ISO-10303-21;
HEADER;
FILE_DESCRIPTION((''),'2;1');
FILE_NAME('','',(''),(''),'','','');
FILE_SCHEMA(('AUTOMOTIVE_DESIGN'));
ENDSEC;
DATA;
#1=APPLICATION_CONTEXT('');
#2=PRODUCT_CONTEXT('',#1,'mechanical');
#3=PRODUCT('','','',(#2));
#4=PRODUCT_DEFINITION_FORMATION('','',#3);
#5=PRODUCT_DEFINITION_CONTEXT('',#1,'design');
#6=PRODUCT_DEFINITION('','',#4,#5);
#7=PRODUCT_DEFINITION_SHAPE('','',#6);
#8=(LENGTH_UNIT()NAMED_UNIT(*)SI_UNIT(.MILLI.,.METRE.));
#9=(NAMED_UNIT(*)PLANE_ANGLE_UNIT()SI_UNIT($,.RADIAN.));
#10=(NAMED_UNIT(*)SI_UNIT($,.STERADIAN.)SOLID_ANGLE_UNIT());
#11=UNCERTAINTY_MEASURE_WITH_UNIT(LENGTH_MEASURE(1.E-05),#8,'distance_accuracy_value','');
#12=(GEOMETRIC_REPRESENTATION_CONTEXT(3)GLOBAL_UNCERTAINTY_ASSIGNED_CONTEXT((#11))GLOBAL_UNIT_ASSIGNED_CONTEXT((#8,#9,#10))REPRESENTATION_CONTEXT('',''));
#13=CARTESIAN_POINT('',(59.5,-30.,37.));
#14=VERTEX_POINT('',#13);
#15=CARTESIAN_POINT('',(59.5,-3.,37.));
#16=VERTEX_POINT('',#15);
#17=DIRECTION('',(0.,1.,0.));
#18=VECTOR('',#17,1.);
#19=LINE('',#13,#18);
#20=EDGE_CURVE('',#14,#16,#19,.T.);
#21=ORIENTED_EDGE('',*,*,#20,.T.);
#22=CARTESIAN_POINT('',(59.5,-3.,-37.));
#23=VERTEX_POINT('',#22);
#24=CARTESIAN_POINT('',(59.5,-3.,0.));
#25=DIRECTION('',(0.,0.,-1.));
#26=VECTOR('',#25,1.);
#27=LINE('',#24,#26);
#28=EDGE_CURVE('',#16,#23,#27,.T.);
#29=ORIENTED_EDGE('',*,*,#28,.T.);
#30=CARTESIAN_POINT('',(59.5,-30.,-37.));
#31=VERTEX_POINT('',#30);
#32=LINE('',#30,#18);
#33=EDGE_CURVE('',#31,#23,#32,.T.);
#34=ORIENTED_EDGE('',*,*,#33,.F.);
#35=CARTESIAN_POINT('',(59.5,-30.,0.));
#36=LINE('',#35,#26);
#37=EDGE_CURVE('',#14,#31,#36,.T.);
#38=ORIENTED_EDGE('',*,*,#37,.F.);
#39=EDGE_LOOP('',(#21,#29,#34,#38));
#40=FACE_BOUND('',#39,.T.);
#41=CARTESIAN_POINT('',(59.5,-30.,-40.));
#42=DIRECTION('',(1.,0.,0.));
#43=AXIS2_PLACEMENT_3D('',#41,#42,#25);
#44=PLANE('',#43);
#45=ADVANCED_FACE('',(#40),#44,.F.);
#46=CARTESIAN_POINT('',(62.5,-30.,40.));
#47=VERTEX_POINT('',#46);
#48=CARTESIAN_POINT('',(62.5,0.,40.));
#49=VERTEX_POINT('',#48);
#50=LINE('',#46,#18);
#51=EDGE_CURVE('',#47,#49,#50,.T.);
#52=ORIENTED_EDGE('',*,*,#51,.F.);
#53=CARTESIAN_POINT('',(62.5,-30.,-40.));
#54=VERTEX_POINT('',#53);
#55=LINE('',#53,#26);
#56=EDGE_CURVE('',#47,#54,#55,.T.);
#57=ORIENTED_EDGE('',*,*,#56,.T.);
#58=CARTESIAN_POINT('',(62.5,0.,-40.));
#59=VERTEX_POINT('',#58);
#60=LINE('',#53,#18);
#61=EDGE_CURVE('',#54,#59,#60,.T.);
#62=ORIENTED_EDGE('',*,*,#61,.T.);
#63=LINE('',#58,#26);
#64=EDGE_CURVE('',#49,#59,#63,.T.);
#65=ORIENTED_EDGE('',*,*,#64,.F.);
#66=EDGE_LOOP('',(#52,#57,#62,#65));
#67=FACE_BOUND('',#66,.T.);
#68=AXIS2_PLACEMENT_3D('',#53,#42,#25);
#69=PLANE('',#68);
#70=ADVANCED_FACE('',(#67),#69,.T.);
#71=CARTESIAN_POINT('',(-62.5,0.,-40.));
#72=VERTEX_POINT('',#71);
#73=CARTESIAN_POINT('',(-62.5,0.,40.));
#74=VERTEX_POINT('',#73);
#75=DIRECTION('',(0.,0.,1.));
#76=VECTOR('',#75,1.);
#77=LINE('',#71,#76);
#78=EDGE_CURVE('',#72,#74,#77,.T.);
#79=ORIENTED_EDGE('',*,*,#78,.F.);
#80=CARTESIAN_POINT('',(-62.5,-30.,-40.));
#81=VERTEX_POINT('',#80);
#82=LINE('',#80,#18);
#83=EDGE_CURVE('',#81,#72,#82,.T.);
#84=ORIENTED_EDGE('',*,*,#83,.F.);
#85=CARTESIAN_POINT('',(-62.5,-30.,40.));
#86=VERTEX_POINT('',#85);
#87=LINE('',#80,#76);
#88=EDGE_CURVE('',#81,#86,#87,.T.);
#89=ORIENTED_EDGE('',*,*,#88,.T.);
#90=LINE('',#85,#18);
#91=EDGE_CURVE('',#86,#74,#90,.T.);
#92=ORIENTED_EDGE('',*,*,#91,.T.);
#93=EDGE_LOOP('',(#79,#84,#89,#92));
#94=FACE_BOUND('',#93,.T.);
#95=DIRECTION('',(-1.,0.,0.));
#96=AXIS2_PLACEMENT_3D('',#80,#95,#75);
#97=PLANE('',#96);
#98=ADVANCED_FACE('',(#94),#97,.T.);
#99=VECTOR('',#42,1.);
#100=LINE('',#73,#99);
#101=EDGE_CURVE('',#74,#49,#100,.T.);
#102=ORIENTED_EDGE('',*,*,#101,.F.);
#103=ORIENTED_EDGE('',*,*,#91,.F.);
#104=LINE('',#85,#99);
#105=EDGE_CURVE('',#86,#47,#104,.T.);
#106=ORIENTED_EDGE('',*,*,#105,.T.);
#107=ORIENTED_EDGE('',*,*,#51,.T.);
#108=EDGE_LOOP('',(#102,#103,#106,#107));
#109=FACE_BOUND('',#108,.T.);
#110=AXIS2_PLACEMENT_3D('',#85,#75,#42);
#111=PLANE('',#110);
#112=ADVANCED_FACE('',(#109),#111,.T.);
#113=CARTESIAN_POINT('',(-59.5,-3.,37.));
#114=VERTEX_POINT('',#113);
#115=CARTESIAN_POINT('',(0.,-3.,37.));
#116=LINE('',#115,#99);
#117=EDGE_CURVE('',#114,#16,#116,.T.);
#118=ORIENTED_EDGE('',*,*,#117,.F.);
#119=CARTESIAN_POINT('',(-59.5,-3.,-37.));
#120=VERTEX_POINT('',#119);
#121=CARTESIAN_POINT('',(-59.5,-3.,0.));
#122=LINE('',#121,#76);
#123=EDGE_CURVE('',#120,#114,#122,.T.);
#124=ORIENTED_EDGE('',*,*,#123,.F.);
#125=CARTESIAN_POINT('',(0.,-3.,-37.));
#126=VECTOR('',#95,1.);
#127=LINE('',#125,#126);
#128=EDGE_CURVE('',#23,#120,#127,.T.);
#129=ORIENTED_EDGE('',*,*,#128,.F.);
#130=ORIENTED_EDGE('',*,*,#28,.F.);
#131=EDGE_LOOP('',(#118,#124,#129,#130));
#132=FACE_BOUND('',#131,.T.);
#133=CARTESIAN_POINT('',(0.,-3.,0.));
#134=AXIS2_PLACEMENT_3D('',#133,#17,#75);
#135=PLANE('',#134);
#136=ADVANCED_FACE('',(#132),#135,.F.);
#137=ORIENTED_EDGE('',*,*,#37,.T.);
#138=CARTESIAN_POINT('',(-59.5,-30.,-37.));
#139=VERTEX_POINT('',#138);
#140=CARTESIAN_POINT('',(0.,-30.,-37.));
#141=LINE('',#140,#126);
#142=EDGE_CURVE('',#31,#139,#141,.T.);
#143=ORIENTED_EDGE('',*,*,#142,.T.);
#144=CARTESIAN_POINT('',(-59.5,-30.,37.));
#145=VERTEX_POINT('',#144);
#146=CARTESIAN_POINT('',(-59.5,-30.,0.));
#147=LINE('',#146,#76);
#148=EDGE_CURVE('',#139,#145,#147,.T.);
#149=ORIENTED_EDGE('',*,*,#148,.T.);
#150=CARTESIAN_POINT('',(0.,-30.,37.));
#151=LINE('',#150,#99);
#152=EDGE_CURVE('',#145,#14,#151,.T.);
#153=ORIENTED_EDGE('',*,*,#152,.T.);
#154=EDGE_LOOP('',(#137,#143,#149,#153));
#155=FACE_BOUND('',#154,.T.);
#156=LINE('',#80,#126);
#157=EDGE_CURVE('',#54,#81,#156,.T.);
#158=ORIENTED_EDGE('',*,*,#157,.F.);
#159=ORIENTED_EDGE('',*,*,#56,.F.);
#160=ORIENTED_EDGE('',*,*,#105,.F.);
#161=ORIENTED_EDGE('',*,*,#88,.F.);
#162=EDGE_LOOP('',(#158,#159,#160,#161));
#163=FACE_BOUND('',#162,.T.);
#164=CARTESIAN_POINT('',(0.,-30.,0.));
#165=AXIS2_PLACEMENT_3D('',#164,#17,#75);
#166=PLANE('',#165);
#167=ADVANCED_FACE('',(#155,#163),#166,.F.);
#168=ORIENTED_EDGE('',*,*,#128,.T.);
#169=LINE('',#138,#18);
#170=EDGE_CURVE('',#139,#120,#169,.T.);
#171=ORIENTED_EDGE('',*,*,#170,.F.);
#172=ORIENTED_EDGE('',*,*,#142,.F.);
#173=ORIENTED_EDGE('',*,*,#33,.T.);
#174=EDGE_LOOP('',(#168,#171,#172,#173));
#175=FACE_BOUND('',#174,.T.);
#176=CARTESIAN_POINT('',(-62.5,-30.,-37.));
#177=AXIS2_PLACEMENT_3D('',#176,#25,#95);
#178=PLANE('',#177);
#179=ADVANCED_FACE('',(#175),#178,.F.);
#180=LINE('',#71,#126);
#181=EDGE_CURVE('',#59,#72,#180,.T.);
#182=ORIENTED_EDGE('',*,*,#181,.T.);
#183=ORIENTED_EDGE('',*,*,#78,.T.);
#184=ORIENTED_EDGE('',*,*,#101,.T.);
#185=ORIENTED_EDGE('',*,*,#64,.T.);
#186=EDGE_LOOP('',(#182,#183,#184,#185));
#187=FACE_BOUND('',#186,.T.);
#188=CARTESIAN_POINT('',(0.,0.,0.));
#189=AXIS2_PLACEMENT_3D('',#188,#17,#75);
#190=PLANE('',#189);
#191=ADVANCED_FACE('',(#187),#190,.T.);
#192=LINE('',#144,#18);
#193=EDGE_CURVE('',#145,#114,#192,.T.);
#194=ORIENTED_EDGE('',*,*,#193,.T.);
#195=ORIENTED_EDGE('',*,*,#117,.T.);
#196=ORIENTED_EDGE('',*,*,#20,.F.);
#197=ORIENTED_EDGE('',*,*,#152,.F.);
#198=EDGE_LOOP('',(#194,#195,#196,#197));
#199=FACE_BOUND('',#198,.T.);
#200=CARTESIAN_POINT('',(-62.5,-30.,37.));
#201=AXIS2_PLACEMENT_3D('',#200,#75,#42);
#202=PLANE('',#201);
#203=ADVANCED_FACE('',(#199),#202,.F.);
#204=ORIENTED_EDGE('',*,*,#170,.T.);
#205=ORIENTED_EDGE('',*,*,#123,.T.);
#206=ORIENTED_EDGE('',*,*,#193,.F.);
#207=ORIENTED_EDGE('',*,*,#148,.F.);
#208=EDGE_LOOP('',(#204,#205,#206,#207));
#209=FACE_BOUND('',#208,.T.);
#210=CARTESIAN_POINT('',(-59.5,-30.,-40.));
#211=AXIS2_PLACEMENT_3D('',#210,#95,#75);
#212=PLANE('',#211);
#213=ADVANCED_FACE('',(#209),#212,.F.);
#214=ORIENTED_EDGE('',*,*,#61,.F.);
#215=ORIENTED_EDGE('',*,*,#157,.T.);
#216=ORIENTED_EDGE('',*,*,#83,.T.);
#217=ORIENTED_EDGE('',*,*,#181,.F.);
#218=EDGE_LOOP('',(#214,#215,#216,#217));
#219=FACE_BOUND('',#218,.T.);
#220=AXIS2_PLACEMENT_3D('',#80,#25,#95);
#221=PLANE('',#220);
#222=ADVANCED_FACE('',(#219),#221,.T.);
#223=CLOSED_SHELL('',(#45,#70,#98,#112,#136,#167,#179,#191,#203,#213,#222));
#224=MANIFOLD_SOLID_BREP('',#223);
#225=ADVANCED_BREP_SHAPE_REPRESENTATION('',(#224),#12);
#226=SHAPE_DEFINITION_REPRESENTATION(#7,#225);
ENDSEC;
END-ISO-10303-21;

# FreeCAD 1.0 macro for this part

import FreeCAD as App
import Part
import Sketcher
Q = App.Units.Quantity


def faces_at(feature, points):
    """Names of the faces that lie closest to the given points."""
    faces = feature.Shape.Faces
    near = lambda p: min(range(len(faces)), key=lambda i: faces[i].distToShape(Part.Vertex(*p))[0])
    return sorted({f"Face{near(p) + 1}" for p in points})

doc = App.newDocument("Part")
body = doc.addObject("PartDesign::Body", "Body")

sketch1 = doc.addObject("Sketcher::SketchObject", "Sketch")
body.addObject(sketch1)
sketch1.AttachmentSupport = (doc.XZ_Plane, [""])
sketch1.MapMode = "FlatFace"
sketch1.addGeometry([
    Part.LineSegment(App.Vector(-62, -40, 0), App.Vector(-62, 40, 0)),
    Part.LineSegment(App.Vector(-62, 40, 0), App.Vector(62, 40, 0)),
    Part.LineSegment(App.Vector(62, 40, 0), App.Vector(62, -40, 0)),
    Part.LineSegment(App.Vector(62, -40, 0), App.Vector(-62, -40, 0)),
], False)
sketch1.addConstraint([
    Sketcher.Constraint("Coincident", 0, 2, 1, 1),
    Sketcher.Constraint("Coincident", 1, 2, 2, 1),
    Sketcher.Constraint("Coincident", 2, 2, 3, 1),
    Sketcher.Constraint("Coincident", 3, 2, 0, 1),
    Sketcher.Constraint("Vertical", 0),
    Sketcher.Constraint("Horizontal", 1),
    Sketcher.Constraint("Vertical", 2),
    Sketcher.Constraint("Horizontal", 3),
    Sketcher.Constraint("Symmetric", 0, 2, 2, 2, -1, 1),
    Sketcher.Constraint("DistanceX", 1, 1, 1, 2, Q("125 mm")),
    Sketcher.Constraint("DistanceY", 0, 1, 0, 2, Q("80 mm")),
])
pad1 = doc.addObject("PartDesign::Pad", "Pad")
body.addObject(pad1)
pad1.Profile = sketch1
pad1.Length = 30
doc.recompute()

thickness = doc.addObject("PartDesign::Thickness", "Thickness")
body.addObject(thickness)
thickness.Base = (pad1, faces_at(pad1, [(0, -30, 0)]))
thickness.Value = 3
thickness.Reversed = True
thickness.Join = "Intersection"

doc.recompute()
